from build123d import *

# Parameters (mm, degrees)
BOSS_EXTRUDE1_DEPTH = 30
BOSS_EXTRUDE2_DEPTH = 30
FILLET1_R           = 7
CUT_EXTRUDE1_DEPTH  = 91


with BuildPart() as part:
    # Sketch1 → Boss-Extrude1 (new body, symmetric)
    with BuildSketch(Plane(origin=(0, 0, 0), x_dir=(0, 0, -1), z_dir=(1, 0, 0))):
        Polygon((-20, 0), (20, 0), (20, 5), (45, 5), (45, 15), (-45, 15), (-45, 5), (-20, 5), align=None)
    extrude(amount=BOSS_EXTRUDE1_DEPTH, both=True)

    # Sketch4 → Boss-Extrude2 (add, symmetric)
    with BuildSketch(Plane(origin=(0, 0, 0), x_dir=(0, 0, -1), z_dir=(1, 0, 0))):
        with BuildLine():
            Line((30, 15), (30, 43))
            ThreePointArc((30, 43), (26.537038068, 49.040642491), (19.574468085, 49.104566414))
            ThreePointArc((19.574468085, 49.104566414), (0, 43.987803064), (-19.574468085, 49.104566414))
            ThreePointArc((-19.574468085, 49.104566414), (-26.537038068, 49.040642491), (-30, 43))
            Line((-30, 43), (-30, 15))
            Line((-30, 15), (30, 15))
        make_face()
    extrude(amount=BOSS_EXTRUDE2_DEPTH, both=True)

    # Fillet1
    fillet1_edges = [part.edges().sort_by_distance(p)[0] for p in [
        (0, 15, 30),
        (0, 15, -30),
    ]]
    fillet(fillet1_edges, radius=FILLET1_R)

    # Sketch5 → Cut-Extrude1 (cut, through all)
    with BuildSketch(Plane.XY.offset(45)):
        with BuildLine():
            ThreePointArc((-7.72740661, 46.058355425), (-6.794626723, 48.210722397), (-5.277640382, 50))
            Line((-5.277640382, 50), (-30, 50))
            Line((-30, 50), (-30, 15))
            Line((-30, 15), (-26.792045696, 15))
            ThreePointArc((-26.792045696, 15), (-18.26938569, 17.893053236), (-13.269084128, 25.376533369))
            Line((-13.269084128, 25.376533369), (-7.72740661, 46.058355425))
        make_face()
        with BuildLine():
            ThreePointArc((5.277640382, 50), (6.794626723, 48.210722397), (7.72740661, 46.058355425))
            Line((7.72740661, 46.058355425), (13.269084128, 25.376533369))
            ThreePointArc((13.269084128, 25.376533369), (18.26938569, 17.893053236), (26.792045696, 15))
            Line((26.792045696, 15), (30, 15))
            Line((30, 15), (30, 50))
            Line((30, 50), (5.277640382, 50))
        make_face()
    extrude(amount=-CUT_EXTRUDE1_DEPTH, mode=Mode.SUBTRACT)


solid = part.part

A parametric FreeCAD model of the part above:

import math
import FreeCAD as App
import Part
import Sketcher
Q = App.Units.Quantity


def edges_at(feature, points):
    """Names of the edges that pass closest to the given points."""
    edges = feature.Shape.Edges
    near = lambda p: min(range(len(edges)), key=lambda i: edges[i].distToShape(Part.Vertex(*p))[0])
    return sorted({f"Edge{near(p) + 1}" for p in points})

doc = App.newDocument("Part")
params = doc.addObject("Spreadsheet::Sheet", "Params")
for row, (alias, value) in enumerate([
    ("sketch1_width", "5 mm"),
    ("sketch1_width2", "10 mm"),
    ("sketch1_height", "40 mm"),
    ("sketch1_height2", "25 mm"),
    ("pad1_length", "60 mm"),
    ("sketch2_radius", "7 mm"),
    ("sketch2_radius2", "40 mm"),
    ("sketch2_width", "28 mm"),
    ("sketch2_height", "60 mm"),
    ("pad2_length", "60 mm"),
    ("fillet_radius", "7 mm"),
    ("sketch3_radius", "8 mm"),
    ("sketch3_radius2", "14 mm"),
    ("sketch3_height", "35 mm"),
], start=1):
    params.set(f"A{row}", alias)
    params.set(f"B{row}", "=" + value)
    params.setAlias(f"B{row}", alias)

body = doc.addObject("PartDesign::Body", "Body")

# Sketch on YZ plane
sketch1 = doc.addObject("Sketcher::SketchObject", "Sketch")
body.addObject(sketch1)
sketch1.AttachmentSupport = (doc.YZ_Plane, [""])
sketch1.MapMode = "FlatFace"
sketch1.addGeometry([
    Part.LineSegment(App.Vector(0, 20, 0), App.Vector(0, -20, 0)),  # 0
    Part.LineSegment(App.Vector(0, -20, 0), App.Vector(5, -20, 0)),  # 1
    Part.LineSegment(App.Vector(5, -20, 0), App.Vector(5, -45, 0)),  # 2
    Part.LineSegment(App.Vector(5, -45, 0), App.Vector(15, -45, 0)),  # 3
    Part.LineSegment(App.Vector(15, -45, 0), App.Vector(15, 45, 0)),  # 4
    Part.LineSegment(App.Vector(15, 45, 0), App.Vector(5, 45, 0)),  # 5
    Part.LineSegment(App.Vector(5, 45, 0), App.Vector(5, 20, 0)),  # 6
    Part.LineSegment(App.Vector(5, 20, 0), App.Vector(0, 20, 0)),  # 7
], False)
sketch1.addConstraint([
    Sketcher.Constraint("Coincident", 0, 2, 1, 1),
    Sketcher.Constraint("Coincident", 1, 2, 2, 1),
    Sketcher.Constraint("Coincident", 2, 2, 3, 1),
    Sketcher.Constraint("Coincident", 3, 2, 4, 1),
    Sketcher.Constraint("Coincident", 4, 2, 5, 1),
    Sketcher.Constraint("Coincident", 5, 2, 6, 1),
    Sketcher.Constraint("Coincident", 6, 2, 7, 1),
    Sketcher.Constraint("Coincident", 7, 2, 0, 1),
    Sketcher.Constraint("Vertical", 0),
    Sketcher.Constraint("Horizontal", 1),
    Sketcher.Constraint("Vertical", 2),
    Sketcher.Constraint("Horizontal", 3),
    Sketcher.Constraint("Vertical", 4),
    Sketcher.Constraint("Horizontal", 5),
    Sketcher.Constraint("Vertical", 6),
    Sketcher.Constraint("Horizontal", 7),
    Sketcher.Constraint("Symmetric", 0, 2, 7, 2, -1, 1),
    Sketcher.Constraint("Symmetric", 2, 2, 5, 2, -1),
    Sketcher.Constraint("DistanceX", 1, 1, 1, 2, 5.0),
    Sketcher.Constraint("DistanceX", 3, 1, 3, 2, 10.0),
    Sketcher.Constraint("DistanceY", 0, 2, 0, 1, 40.0),
    Sketcher.Constraint("DistanceY", 2, 2, 2, 1, 25.0),
])
sketch1.setExpression("Constraints[18]", "Params.sketch1_width")
sketch1.setExpression("Constraints[19]", "Params.sketch1_width2")
sketch1.setExpression("Constraints[20]", "Params.sketch1_height")
sketch1.setExpression("Constraints[21]", "Params.sketch1_height2")
pad1 = doc.addObject("PartDesign::Pad", "Pad")
body.addObject(pad1)
pad1.Profile = sketch1
pad1.setExpression("Length", "Params.pad1_length")
pad1.Midplane = True

# Sketch on YZ plane
sketch2 = doc.addObject("Sketcher::SketchObject", "Sketch001")
body.addObject(sketch2)
sketch2.AttachmentSupport = (doc.YZ_Plane, [""])
sketch2.MapMode = "FlatFace"
sketch2.addGeometry([
    Part.LineSegment(App.Vector(15, -30, 0), App.Vector(43, -30, 0)),  # 0
    Part.ArcOfCircle(Part.Circle(App.Vector(43, -23, 0), App.Vector(0, 0, 1), 7), math.radians(-90), math.radians(29)),  # 1
    Part.ArcOfCircle(Part.Circle(App.Vector(84, 0, 0), App.Vector(0, 0, 1), 40), math.radians(151), math.radians(209)),  # 2
    Part.ArcOfCircle(Part.Circle(App.Vector(43, 23, 0), App.Vector(0, 0, 1), 7), math.radians(-29), math.radians(90)),  # 3
    Part.LineSegment(App.Vector(43, 30, 0), App.Vector(15, 30, 0)),  # 4
    Part.LineSegment(App.Vector(15, 30, 0), App.Vector(15, -30, 0)),  # 5
], False)
sketch2.addConstraint([
    Sketcher.Constraint("Tangent", 0, 2, 1, 1),
    Sketcher.Constraint("Tangent", 1, 2, 2, 2),
    Sketcher.Constraint("Tangent", 2, 1, 3, 1),
    Sketcher.Constraint("Tangent", 3, 2, 4, 1),
    Sketcher.Constraint("Coincident", 4, 2, 5, 1),
    Sketcher.Constraint("Coincident", 5, 2, 0, 1),
    Sketcher.Constraint("Horizontal", 0),
    Sketcher.Constraint("Horizontal", 4),
    Sketcher.Constraint("Vertical", 5),
    Sketcher.Constraint("Equal", 1, 3),
    Sketcher.Constraint("Symmetric", 1, 3, 3, 3, -1),
    Sketcher.Constraint("Radius", 1, 7.0),
    Sketcher.Constraint("Radius", 2, 40.0),
    Sketcher.Constraint("DistanceX", 0, 1, 0, 2, 28.0),
    Sketcher.Constraint("DistanceY", 5, 2, 5, 1, 60.0),
    Sketcher.Constraint("DistanceX", -1, 1, 1, 3, 43.0),
])
sketch2.setExpression("Constraints[11]", "Params.sketch2_radius")
sketch2.setExpression("Constraints[12]", "Params.sketch2_radius2")
sketch2.setExpression("Constraints[13]", "Params.sketch2_width")
sketch2.setExpression("Constraints[14]", "Params.sketch2_height")
pad2 = doc.addObject("PartDesign::Pad", "Pad001")
body.addObject(pad2)
pad2.Profile = sketch2
pad2.setExpression("Length", "Params.pad2_length")
pad2.Midplane = True
doc.recompute()

fillet = doc.addObject("PartDesign::Fillet", "Fillet")
body.addObject(fillet)
fillet.Base = (pad2, edges_at(pad2, [(0, 15, 30), (0, 15, -30)]))
fillet.setExpression("Radius", "Params.fillet_radius")

# Sketch on XY plane
sketch3 = doc.addObject("Sketcher::SketchObject", "Sketch002")
body.addObject(sketch3)
sketch3.AttachmentSupport = (doc.XY_Plane, [""])
sketch3.MapMode = "FlatFace"
sketch3.AttachmentOffset = App.Placement(App.Vector(0, 0, 45), App.Rotation())
sketch3.addGeometry([
    Part.ArcOfCircle(Part.Circle(App.Vector(0, 44, 0), App.Vector(0, 0, 1), 8), math.radians(131), math.radians(165)),  # 0
    Part.LineSegment(App.Vector(-5.3, 50, 0), App.Vector(-30, 50, 0)),  # 1
    Part.LineSegment(App.Vector(-30, 50, 0), App.Vector(-30, 15, 0)),  # 2
    Part.LineSegment(App.Vector(-30, 15, 0), App.Vector(-26.8, 15, 0)),  # 3
    Part.ArcOfCircle(Part.Circle(App.Vector(-26.8, 29, 0), App.Vector(0, 0, 1), 14), math.radians(-90), math.radians(-15)),  # 4
    Part.LineSegment(App.Vector(-13.3, 25.4, 0), App.Vector(-7.7, 46.1, 0)),  # 5
    Part.ArcOfCircle(Part.Circle(App.Vector(0, 44, 0), App.Vector(0, 0, 1), 8), math.radians(15), math.radians(49)),  # 6
    Part.LineSegment(App.Vector(7.7, 46.1, 0), App.Vector(13.3, 25.4, 0)),  # 7
    Part.ArcOfCircle(Part.Circle(App.Vector(26.8, 29, 0), App.Vector(0, 0, 1), 14), math.radians(-165), math.radians(-90)),  # 8
    Part.LineSegment(App.Vector(26.8, 15, 0), App.Vector(30, 15, 0)),  # 9
    Part.LineSegment(App.Vector(30, 15, 0), App.Vector(30, 50, 0)),  # 10
    Part.LineSegment(App.Vector(30, 50, 0), App.Vector(5.3, 50, 0)),  # 11
], False)
sketch3.addConstraint([
    Sketcher.Constraint("Coincident", 0, 1, 1, 1),
    Sketcher.Constraint("Coincident", 1, 2, 2, 1),
    Sketcher.Constraint("Coincident", 2, 2, 3, 1),
    Sketcher.Constraint("Tangent", 3, 2, 4, 1),
    Sketcher.Constraint("Tangent", 4, 2, 5, 1),
    Sketcher.Constraint("Tangent", 5, 2, 0, 2),
    Sketcher.Constraint("Tangent", 6, 1, 7, 1),
    Sketcher.Constraint("Tangent", 7, 2, 8, 1),
    Sketcher.Constraint("Tangent", 8, 2, 9, 1),
    Sketcher.Constraint("Coincident", 9, 2, 10, 1),
    Sketcher.Constraint("Coincident", 10, 2, 11, 1),
    Sketcher.Constraint("Coincident", 11, 2, 6, 2),
    Sketcher.Constraint("Horizontal", 1),
    Sketcher.Constraint("Vertical", 2),
    Sketcher.Constraint("Horizontal", 3),
    Sketcher.Constraint("Horizontal", 9),
    Sketcher.Constraint("Vertical", 10),
    Sketcher.Constraint("Horizontal", 11),
    Sketcher.Constraint("Coincident", 6, 3, 0, 3),
    Sketcher.Constraint("Equal", 0, 6),
    Sketcher.Constraint("Equal", 4, 8),
    Sketcher.Constraint("Symmetric", 4, 3, 8, 3, -2),
    Sketcher.Constraint("Symmetric", 1, 2, 10, 2, -2),
    Sketcher.Constraint("PointOnObject", 0, 3, -2),
    Sketcher.Constraint("Radius", 0, 8.0),
    Sketcher.Constraint("Radius", 4, 14.0),
    Sketcher.Constraint("DistanceY", 2, 2, 2, 1, 35.0),
    Sketcher.Constraint("Angle", 5, Q("75 deg")),
    Sketcher.Constraint("DistanceY", -1, 1, 4, 3, 29.0),
    Sketcher.Constraint("DistanceX", 1, 2, -1, 1, 30.0),
    Sketcher.Constraint("DistanceX", 1, 2, 1, 1, 24.72236),
])
sketch3.setExpression("Constraints[24]", "Params.sketch3_radius")
sketch3.setExpression("Constraints[25]", "Params.sketch3_radius2")
sketch3.setExpression("Constraints[26]", "Params.sketch3_height")
pocket1 = doc.addObject("PartDesign::Pocket", "Pocket")
body.addObject(pocket1)
pocket1.Profile = sketch3
pocket1.Type = "ThroughAll"

doc.recompute()
